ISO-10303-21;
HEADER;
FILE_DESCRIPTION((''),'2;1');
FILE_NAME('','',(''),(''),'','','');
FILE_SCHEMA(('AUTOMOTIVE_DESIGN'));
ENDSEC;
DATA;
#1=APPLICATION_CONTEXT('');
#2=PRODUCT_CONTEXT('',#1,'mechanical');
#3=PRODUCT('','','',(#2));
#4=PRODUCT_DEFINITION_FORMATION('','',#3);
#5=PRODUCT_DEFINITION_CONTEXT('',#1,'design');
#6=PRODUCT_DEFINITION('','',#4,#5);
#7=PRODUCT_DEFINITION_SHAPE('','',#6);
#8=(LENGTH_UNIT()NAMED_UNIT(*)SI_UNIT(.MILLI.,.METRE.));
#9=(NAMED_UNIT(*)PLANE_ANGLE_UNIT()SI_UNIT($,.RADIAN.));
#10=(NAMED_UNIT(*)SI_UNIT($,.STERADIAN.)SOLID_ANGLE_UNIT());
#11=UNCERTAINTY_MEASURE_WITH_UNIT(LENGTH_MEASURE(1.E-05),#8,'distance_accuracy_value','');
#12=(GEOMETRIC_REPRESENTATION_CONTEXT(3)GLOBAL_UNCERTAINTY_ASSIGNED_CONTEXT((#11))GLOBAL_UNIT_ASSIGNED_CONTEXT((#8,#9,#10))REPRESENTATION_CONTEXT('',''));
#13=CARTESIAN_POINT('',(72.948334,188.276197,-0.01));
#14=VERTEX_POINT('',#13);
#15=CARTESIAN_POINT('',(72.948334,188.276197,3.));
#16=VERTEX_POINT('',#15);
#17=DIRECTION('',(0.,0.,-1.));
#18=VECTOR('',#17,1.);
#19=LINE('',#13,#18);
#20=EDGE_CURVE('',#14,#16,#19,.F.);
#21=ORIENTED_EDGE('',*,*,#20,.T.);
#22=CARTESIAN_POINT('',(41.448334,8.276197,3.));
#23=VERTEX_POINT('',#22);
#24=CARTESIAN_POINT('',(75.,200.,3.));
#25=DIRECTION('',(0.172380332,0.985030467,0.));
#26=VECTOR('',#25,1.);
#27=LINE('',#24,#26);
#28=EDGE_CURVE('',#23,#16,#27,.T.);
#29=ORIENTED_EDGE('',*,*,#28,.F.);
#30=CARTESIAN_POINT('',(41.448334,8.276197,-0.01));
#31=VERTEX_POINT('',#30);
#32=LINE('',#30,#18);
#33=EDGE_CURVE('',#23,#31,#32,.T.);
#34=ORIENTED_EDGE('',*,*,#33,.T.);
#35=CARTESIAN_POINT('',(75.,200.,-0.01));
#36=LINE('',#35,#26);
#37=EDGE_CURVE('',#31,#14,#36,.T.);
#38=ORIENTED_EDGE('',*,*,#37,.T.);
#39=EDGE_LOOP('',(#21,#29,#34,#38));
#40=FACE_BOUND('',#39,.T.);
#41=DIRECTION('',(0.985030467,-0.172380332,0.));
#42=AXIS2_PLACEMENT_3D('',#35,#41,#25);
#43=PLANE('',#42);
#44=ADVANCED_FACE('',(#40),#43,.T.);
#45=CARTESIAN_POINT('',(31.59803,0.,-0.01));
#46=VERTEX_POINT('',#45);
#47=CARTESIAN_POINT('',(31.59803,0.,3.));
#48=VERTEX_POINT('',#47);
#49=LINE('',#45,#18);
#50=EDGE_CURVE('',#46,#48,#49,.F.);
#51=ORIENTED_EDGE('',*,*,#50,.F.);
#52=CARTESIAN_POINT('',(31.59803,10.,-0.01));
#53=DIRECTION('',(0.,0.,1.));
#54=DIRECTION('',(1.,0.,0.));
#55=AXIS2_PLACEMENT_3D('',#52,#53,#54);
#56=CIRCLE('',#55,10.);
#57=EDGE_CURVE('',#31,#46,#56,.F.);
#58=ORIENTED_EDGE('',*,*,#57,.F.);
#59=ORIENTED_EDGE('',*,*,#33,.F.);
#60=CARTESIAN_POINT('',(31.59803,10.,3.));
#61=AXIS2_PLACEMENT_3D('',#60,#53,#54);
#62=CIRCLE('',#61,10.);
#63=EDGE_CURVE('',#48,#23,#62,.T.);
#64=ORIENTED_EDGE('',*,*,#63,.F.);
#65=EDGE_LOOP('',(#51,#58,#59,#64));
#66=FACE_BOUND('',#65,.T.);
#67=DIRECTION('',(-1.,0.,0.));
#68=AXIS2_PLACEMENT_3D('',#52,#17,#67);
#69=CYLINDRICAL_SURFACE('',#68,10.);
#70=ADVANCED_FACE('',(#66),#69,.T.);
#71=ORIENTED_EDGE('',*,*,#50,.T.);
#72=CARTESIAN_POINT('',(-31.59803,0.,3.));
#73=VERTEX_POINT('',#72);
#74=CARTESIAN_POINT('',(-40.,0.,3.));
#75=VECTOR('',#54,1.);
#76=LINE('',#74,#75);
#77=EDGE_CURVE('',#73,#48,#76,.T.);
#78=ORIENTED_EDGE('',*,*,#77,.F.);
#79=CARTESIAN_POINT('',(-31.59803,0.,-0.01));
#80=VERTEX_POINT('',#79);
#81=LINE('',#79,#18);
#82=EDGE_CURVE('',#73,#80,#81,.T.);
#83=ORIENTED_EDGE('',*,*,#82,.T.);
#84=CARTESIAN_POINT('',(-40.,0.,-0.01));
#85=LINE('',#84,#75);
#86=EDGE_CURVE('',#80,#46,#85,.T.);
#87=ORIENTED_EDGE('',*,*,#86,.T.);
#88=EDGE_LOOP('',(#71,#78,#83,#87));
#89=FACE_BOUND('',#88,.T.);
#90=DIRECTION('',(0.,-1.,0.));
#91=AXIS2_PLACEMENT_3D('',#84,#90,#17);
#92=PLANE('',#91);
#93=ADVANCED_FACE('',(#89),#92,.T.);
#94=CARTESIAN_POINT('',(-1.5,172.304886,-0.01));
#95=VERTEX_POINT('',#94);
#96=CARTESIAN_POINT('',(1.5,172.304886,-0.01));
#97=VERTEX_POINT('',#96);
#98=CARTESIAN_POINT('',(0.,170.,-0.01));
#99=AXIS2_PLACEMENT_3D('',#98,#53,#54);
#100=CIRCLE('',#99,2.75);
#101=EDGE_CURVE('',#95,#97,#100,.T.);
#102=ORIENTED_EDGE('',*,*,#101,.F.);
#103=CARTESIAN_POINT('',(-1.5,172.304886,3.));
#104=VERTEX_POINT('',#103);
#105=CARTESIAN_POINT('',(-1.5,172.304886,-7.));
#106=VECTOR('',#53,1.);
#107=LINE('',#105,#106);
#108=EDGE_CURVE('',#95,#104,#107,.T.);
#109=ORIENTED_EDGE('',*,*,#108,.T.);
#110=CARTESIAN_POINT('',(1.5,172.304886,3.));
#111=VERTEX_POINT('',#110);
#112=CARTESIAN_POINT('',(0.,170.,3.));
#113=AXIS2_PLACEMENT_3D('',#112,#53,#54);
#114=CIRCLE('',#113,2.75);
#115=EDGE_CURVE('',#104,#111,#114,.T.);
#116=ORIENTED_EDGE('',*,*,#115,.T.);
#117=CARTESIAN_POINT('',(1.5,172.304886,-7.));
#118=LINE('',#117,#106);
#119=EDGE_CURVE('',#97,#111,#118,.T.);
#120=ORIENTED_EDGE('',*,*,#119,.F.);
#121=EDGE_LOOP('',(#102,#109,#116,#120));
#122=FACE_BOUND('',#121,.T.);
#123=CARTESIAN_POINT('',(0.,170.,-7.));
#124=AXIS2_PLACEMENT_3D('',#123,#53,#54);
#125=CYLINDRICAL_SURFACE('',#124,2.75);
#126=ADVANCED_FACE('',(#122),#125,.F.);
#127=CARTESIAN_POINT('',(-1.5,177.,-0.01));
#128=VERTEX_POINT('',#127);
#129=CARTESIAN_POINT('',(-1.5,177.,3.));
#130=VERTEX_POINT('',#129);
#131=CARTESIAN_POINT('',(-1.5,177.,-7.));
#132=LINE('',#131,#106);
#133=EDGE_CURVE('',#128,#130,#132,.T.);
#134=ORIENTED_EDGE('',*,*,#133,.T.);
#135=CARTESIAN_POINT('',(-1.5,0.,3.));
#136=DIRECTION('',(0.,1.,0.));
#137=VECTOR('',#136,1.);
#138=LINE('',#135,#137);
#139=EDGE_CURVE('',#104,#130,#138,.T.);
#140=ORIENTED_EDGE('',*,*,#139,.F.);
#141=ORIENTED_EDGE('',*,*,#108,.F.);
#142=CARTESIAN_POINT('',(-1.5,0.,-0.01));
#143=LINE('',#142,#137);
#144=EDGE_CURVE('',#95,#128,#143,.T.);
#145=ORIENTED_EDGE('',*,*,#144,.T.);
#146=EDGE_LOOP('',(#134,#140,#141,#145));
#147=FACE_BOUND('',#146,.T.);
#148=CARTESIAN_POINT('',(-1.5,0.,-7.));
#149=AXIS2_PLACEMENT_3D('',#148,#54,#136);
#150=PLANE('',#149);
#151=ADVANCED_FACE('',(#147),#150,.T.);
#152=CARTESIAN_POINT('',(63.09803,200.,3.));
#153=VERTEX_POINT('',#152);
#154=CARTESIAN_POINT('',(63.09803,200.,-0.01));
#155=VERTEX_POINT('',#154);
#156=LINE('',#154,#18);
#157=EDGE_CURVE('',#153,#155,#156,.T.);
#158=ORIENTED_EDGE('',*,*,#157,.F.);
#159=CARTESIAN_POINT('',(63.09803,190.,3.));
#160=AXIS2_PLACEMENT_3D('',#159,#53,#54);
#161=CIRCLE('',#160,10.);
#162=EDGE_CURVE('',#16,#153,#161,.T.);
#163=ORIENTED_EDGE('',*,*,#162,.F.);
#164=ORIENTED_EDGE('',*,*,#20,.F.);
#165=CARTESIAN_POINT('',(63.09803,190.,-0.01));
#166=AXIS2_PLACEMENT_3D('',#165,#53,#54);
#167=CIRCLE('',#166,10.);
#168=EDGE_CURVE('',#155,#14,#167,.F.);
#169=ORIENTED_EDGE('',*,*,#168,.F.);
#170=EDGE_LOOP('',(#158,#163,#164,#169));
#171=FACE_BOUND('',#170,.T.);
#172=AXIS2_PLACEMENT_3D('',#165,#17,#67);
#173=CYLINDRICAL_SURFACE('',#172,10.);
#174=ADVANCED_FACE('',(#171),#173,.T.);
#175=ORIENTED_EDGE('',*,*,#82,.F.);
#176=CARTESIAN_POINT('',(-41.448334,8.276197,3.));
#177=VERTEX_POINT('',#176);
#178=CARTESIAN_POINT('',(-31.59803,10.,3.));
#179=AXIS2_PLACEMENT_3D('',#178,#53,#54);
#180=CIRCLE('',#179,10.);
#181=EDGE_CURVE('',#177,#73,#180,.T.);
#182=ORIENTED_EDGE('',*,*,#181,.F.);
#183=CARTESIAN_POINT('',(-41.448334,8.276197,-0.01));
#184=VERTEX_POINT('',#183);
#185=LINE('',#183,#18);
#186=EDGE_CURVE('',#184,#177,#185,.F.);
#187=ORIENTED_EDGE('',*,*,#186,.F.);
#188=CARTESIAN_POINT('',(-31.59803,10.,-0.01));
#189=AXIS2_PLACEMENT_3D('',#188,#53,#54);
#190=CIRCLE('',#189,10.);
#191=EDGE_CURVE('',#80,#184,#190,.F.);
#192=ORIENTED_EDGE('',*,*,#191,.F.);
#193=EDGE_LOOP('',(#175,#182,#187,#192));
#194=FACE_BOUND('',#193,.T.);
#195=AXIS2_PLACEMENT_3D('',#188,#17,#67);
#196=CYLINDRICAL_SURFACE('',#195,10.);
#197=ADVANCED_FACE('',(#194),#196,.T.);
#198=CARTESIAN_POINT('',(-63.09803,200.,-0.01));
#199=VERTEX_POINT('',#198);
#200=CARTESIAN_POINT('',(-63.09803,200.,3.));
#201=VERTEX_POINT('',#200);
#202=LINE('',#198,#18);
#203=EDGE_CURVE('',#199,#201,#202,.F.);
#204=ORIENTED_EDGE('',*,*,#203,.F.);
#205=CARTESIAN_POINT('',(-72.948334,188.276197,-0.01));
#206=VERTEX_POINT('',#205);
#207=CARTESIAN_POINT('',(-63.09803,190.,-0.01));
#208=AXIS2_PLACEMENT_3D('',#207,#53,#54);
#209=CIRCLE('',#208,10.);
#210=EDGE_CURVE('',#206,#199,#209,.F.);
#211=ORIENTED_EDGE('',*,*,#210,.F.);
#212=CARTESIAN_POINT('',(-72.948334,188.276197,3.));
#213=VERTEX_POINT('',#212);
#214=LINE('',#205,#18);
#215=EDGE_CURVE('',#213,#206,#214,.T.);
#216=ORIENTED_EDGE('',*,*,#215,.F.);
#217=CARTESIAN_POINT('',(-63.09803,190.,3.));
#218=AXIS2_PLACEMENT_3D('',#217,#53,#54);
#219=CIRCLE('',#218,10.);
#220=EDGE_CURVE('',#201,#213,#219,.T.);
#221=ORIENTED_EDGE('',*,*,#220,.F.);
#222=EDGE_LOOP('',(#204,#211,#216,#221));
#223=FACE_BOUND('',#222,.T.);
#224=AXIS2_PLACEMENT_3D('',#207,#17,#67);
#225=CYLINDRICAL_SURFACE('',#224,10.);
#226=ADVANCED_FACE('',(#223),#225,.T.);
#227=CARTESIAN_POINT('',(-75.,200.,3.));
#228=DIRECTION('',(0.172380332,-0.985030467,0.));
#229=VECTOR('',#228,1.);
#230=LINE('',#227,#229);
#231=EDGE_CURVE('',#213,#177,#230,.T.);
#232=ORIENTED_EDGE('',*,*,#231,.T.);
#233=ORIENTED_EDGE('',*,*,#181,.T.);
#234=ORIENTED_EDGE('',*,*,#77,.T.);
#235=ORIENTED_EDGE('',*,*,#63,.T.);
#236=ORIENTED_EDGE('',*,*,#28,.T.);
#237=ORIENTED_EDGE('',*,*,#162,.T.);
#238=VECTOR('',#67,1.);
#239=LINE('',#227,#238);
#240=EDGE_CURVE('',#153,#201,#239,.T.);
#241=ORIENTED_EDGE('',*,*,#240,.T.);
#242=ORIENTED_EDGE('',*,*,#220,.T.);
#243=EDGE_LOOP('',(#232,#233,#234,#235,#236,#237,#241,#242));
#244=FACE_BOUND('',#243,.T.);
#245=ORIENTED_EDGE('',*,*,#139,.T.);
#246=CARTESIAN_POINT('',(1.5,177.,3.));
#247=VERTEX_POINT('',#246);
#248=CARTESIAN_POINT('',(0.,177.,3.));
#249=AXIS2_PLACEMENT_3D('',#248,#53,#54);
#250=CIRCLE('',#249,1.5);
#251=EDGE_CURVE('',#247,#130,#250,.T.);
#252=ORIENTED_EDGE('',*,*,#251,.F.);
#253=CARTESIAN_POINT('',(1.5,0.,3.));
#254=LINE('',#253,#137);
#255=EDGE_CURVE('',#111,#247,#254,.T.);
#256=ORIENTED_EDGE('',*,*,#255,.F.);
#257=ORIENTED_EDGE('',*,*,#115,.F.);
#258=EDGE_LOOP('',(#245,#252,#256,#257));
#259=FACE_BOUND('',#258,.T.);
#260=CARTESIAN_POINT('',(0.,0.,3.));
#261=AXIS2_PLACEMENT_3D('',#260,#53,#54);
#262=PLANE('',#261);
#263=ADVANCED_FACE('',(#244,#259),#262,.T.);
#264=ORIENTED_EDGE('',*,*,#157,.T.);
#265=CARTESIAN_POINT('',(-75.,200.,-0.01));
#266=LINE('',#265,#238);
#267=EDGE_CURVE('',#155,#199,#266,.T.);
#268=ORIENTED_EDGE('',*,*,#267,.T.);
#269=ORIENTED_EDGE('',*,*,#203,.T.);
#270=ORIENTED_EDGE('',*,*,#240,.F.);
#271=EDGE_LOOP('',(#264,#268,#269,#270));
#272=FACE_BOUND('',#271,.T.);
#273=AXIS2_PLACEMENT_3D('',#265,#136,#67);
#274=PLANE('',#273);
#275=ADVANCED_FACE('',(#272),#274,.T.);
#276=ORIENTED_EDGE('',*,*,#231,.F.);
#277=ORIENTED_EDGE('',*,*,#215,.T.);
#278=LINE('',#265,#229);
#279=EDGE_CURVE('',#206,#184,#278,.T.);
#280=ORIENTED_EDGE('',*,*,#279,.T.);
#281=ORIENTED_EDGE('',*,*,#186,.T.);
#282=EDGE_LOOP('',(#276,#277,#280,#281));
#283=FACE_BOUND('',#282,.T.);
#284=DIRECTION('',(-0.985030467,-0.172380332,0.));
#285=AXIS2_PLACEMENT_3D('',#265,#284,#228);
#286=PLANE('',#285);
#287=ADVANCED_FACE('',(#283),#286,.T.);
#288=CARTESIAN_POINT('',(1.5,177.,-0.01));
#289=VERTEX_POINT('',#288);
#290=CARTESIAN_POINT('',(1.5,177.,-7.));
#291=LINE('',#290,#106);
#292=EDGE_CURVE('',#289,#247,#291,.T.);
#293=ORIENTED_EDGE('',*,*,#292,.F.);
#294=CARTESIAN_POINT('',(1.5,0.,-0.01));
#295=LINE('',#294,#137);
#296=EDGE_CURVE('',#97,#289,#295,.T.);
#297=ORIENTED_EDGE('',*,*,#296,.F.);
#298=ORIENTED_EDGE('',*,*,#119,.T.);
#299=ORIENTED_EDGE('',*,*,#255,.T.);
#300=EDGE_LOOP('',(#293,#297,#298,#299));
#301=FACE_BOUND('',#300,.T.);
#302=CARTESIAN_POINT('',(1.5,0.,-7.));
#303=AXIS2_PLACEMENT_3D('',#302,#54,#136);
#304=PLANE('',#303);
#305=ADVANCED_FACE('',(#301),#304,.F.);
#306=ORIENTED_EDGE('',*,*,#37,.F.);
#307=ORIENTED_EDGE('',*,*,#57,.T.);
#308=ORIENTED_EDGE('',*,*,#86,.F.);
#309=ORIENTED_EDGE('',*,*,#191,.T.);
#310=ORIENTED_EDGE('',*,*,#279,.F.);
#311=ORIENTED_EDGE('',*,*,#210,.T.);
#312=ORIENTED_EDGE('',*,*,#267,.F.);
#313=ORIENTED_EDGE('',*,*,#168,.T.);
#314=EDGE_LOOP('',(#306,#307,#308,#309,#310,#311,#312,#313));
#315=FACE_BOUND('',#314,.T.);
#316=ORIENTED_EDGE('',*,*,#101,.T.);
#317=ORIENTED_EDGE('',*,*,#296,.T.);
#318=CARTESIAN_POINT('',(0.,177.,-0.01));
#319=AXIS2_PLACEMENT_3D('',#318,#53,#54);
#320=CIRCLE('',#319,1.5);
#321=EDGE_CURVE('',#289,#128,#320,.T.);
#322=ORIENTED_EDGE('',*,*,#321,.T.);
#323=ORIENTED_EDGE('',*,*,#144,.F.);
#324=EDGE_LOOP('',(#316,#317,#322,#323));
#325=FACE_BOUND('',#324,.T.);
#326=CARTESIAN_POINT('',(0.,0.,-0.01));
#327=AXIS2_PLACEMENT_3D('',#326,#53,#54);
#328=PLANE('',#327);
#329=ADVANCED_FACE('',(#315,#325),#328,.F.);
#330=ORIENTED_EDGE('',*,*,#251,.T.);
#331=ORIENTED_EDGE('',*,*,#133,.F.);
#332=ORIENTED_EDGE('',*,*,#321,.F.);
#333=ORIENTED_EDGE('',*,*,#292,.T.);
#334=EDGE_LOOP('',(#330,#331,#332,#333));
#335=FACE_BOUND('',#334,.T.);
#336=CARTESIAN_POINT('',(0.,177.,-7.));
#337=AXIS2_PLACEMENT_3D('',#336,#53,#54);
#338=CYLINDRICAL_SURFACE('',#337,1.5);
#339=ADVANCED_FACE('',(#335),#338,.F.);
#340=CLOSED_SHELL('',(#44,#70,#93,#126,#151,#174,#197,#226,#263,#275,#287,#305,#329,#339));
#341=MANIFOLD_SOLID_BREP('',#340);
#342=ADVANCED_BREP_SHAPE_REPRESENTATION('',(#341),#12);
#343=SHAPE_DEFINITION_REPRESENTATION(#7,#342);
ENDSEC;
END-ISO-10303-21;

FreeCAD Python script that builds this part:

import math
import FreeCAD as App
import Part
import Sketcher
Q = App.Units.Quantity


def edges_at(feature, points):
    """Names of the edges that pass closest to the given points."""
    edges = feature.Shape.Edges
    near = lambda p: min(range(len(edges)), key=lambda i: edges[i].distToShape(Part.Vertex(*p))[0])
    return sorted({f"Edge{near(p) + 1}" for p in points})


def add_polygon(sketch, points):
    """Adds a closed chain of lines whose ends are joined by coincident constraints."""
    first, n = sketch.GeometryCount, len(points)
    for a, b in zip(points, points[1:] + points[:1]):
        sketch.addGeometry(Part.LineSegment(App.Vector(*a, 0), App.Vector(*b, 0)), False)
    for i in range(n):
        sketch.addConstraint(Sketcher.Constraint("Coincident", first + i, 2, first + (i + 1) % n, 1))

doc = App.newDocument("Part")
params = doc.addObject("Spreadsheet::Sheet", "Params")
for row, (alias, value) in enumerate([
    ("sketch1_width", "80 mm"),
    ("sketch1_width2", "150 mm"),
    ("pad1_length", "3 mm"),
    ("pad1_length2", "0.01 mm"),
    ("fillet_radius", "10 mm"),
    ("fillet2_radius", "10 mm"),
    ("fillet3_radius", "10 mm"),
    ("fillet4_radius", "10 mm"),
    ("sketch2_radius", "1.5 mm"),
    ("sketch2_radius2", "2.75 mm"),
    ("pocket1_length", "10 mm"),
], start=1):
    params.set(f"A{row}", alias)
    params.set(f"B{row}", "=" + value)
    params.setAlias(f"B{row}", alias)

body = doc.addObject("PartDesign::Body", "Body")

# Sketch on XY plane
sketch1 = body.newObject("Sketcher::SketchObject", "Sketch")
sketch1.AttachmentSupport = (doc.getObject("XY_Plane"), [""])
sketch1.MapMode = "FlatFace"
add_polygon(sketch1, [(-40, 0), (40, 0), (75, 200), (-75, 200)])  # lines 0-3
sketch1.addConstraint([
    Sketcher.Constraint("Horizontal", 0),
    Sketcher.Constraint("Horizontal", 2),
    Sketcher.Constraint("Symmetric", 0, 2, 3, 2, -1, 1),
    Sketcher.Constraint("Equal", 1, 3),
    Sketcher.Constraint("DistanceX", 0, 1, 0, 2, Q("80 mm")),
    Sketcher.Constraint("DistanceX", 2, 2, 2, 1, Q("150 mm")),
    Sketcher.Constraint("DistanceY", -1, 1, 1, 2, Q("200 mm")),
])
sketch1.setExpression("Constraints[8]", "Params.sketch1_width")
sketch1.setExpression("Constraints[9]", "Params.sketch1_width2")
pad1 = body.newObject("PartDesign::Pad", "Pad")
pad1.Profile = sketch1
pad1.Type = "TwoLengths"
pad1.setExpression("Length", "Params.pad1_length")
pad1.setExpression("Length2", "Params.pad1_length2")
doc.recompute()

fillet = body.newObject("PartDesign::Fillet", "Fillet")
fillet.Base = (pad1, edges_at(pad1, [(75, 200, 1.495)]))
fillet.setExpression("Radius", "Params.fillet_radius")
doc.recompute()

fillet2 = body.newObject("PartDesign::Fillet", "Fillet001")
fillet2.Base = (fillet, edges_at(fillet, [(40, 0, 1.495)]))
fillet2.setExpression("Radius", "Params.fillet2_radius")
doc.recompute()

fillet3 = body.newObject("PartDesign::Fillet", "Fillet002")
fillet3.Base = (fillet2, edges_at(fillet2, [(-40, 0, 1.495)]))
fillet3.setExpression("Radius", "Params.fillet3_radius")
doc.recompute()

fillet4 = body.newObject("PartDesign::Fillet", "Fillet003")
fillet4.Base = (fillet3, edges_at(fillet3, [(-75, 200, 1.495)]))
fillet4.setExpression("Radius", "Params.fillet4_radius")

# Sketch on XY plane
sketch2 = body.newObject("Sketcher::SketchObject", "Sketch001")
sketch2.AttachmentSupport = (doc.getObject("XY_Plane"), [""])
sketch2.MapMode = "FlatFace"
sketch2.AttachmentOffset = App.Placement(App.Vector(0, 0, 3), App.Rotation())
sketch2.addGeometry([
    Part.LineSegment(App.Vector(1.5, 172.304886, 0), App.Vector(1.5, 177, 0)),  # 0
    Part.ArcOfCircle(Part.Circle(App.Vector(0, 177, 0), App.Vector(0, 0, 1), 1.5), math.radians(0), math.radians(180)),  # 1
    Part.LineSegment(App.Vector(-1.5, 177, 0), App.Vector(-1.5, 172.304886, 0)),  # 2
    Part.ArcOfCircle(Part.Circle(App.Vector(0, 170, 0), App.Vector(0, 0, 1), 2.75), math.radians(123.055731), math.radians(360)),  # 3
    Part.ArcOfCircle(Part.Circle(App.Vector(0, 170, 0), App.Vector(0, 0, 1), 2.75), math.radians(0), math.radians(56.944269)),  # 4
], False)
sketch2.addConstraint([
    Sketcher.Constraint("Tangent", 0, 2, 1, 1),
    Sketcher.Constraint("Tangent", 1, 2, 2, 1),
    Sketcher.Constraint("Coincident", 2, 2, 3, 1),
    Sketcher.Constraint("Tangent", 3, 2, 4, 1),
    Sketcher.Constraint("Coincident", 4, 2, 0, 1),
    Sketcher.Constraint("Vertical", 0),
    Sketcher.Constraint("Vertical", 2),
    Sketcher.Constraint("Equal", 3, 4),
    Sketcher.Constraint("Symmetric", 2, 2, 4, 2, -2),
    Sketcher.Constraint("Horizontal", 4, 3, 3, 2),
    Sketcher.Constraint("Radius", 1, Q("1.5 mm")),
    Sketcher.Constraint("Radius", 3, Q("2.75 mm")),
    Sketcher.Constraint("DistanceY", -1, 1, 1, 3, Q("177 mm")),
    Sketcher.Constraint("DistanceY", -1, 1, 3, 3, Q("170 mm")),
])
sketch2.setExpression("Constraints[10]", "Params.sketch2_radius")
sketch2.setExpression("Constraints[11]", "Params.sketch2_radius2")
pocket1 = body.newObject("PartDesign::Pocket", "Pocket")
pocket1.Profile = sketch2
pocket1.setExpression("Length", "Params.pocket1_length")

doc.recompute()
